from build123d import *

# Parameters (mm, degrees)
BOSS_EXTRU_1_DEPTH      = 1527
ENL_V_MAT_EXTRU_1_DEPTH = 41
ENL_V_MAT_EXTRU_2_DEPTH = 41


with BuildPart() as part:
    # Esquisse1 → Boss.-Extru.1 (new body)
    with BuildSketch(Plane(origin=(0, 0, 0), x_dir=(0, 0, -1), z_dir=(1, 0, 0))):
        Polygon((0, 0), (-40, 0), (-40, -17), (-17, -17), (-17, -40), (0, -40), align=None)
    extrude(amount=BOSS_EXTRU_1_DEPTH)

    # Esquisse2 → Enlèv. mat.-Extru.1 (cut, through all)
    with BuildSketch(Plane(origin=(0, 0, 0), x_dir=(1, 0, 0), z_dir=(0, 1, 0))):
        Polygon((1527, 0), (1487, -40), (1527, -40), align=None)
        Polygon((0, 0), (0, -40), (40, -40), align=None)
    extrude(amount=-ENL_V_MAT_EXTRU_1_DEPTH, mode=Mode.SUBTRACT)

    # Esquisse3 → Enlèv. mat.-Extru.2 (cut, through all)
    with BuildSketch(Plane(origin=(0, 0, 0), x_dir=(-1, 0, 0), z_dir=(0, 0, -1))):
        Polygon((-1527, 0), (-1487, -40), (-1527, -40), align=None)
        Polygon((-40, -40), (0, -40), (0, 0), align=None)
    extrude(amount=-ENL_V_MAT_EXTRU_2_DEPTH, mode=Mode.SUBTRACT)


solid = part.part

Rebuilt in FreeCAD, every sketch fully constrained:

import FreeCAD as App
import Part
import Sketcher

V = App.Vector
Q = App.Units.Quantity


def add_polygon(sketch, points):
    """Adds a closed chain of lines whose ends are joined by coincident constraints."""
    first, n = sketch.GeometryCount, len(points)
    for a, b in zip(points, points[1:] + points[:1]):
        sketch.addGeometry(Part.LineSegment(App.Vector(*a, 0), App.Vector(*b, 0)), False)
    for i in range(n):
        sketch.addConstraint(Sketcher.Constraint("Coincident", first + i, 2, first + (i + 1) % n, 1))

doc = App.newDocument("Part")
body = doc.addObject("PartDesign::Body", "Body")

# Sketch on YZ plane
sketch1 = body.newObject("Sketcher::SketchObject", "Sketch")
sketch1.AttachmentSupport = (doc.getObject("YZ_Plane"), [""])
sketch1.MapMode = "FlatFace"
add_polygon(sketch1, [(0, 0), (0, 40), (-17, 40), (-17, 17), (-40, 17), (-40, 0)])  # lines 0-5
sketch1.addConstraint(Sketcher.Constraint("Vertical", 0))
sketch1.addConstraint(Sketcher.Constraint("Horizontal", 1))
sketch1.addConstraint(Sketcher.Constraint("Vertical", 2))
sketch1.addConstraint(Sketcher.Constraint("Horizontal", 3))
sketch1.addConstraint(Sketcher.Constraint("Vertical", 4))
sketch1.addConstraint(Sketcher.Constraint("Horizontal", 5))
sketch1.addConstraint(Sketcher.Constraint("Coincident", 5, 2, -1, 1))
sketch1.addConstraint(Sketcher.Constraint("Equal", 5, 0))
sketch1.addConstraint(Sketcher.Constraint("Equal", 3, 2))
sketch1.addConstraint(Sketcher.Constraint("DistanceX", 1, 2, 1, 1, Q("17 mm")))
sketch1.addConstraint(Sketcher.Constraint("DistanceX", 3, 2, 3, 1, Q("23 mm")))
pad1 = body.newObject("PartDesign::Pad", "Pad")
pad1.Profile = sketch1
pad1.Length = 1527

# Sketch on XZ plane
sketch2 = body.newObject("Sketcher::SketchObject", "Sketch001")
sketch2.AttachmentSupport = (doc.getObject("XZ_Plane"), [""])
sketch2.MapMode = "FlatFace"
add_polygon(sketch2, [(1527, 0), (1487, 40), (1527, 40)])  # lines 0-2
add_polygon(sketch2, [(0, 0), (0, 40), (40, 40)])  # lines 3-5
sketch2.addConstraint(Sketcher.Constraint("Horizontal", 1))
sketch2.addConstraint(Sketcher.Constraint("Vertical", 2))
sketch2.addConstraint(Sketcher.Constraint("Vertical", 3))
sketch2.addConstraint(Sketcher.Constraint("Horizontal", 4))
sketch2.addConstraint(Sketcher.Constraint("Coincident", 5, 2, -1, 1))
sketch2.addConstraint(Sketcher.Constraint("PointOnObject", 2, 2, -1))
sketch2.addConstraint(Sketcher.Constraint("Perpendicular", 0, 5))
sketch2.addConstraint(Sketcher.Constraint("Horizontal", 1, 2, 3, 2))
sketch2.addConstraint(Sketcher.Constraint("Equal", 1, 4))
sketch2.addConstraint(Sketcher.Constraint("DistanceX", 1, 1, 1, 2, Q("40 mm")))
sketch2.addConstraint(Sketcher.Constraint("DistanceX", -1, 1, 0, 2, Q("1487 mm")))
pocket1 = body.newObject("PartDesign::Pocket", "Pocket")
pocket1.Profile = sketch2
pocket1.Type = "ThroughAll"
pocket1.Reversed = True

# Sketch on XY plane
sketch3 = body.newObject("Sketcher::SketchObject", "Sketch002")
sketch3.AttachmentSupport = (doc.getObject("XY_Plane"), [""])
sketch3.MapMode = "FlatFace"
add_polygon(sketch3, [(1487, -40), (1527, 0), (1527, -40)])  # lines 0-2
add_polygon(sketch3, [(40, -40), (0, -40), (0, 0)])  # lines 3-5
sketch3.addConstraint(Sketcher.Constraint("Vertical", 1))
sketch3.addConstraint(Sketcher.Constraint("Horizontal", 2))
sketch3.addConstraint(Sketcher.Constraint("Horizontal", 3))
sketch3.addConstraint(Sketcher.Constraint("Vertical", 4))
sketch3.addConstraint(Sketcher.Constraint("Coincident", 4, 2, -1, 1))
sketch3.addConstraint(Sketcher.Constraint("PointOnObject", 0, 2, -1))
sketch3.addConstraint(Sketcher.Constraint("Perpendicular", 0, 5))
sketch3.addConstraint(Sketcher.Constraint("Horizontal", 2, 2, 3, 2))
sketch3.addConstraint(Sketcher.Constraint("Equal", 2, 3))
sketch3.addConstraint(Sketcher.Constraint("DistanceX", 2, 2, 2, 1, Q("40 mm")))
sketch3.addConstraint(Sketcher.Constraint("DistanceX", -1, 1, 0, 2, Q("1527 mm")))
pocket2 = body.newObject("PartDesign::Pocket", "Pocket001")
pocket2.Profile = sketch3
pocket2.Type = "ThroughAll"
pocket2.Reversed = True

doc.recompute()
